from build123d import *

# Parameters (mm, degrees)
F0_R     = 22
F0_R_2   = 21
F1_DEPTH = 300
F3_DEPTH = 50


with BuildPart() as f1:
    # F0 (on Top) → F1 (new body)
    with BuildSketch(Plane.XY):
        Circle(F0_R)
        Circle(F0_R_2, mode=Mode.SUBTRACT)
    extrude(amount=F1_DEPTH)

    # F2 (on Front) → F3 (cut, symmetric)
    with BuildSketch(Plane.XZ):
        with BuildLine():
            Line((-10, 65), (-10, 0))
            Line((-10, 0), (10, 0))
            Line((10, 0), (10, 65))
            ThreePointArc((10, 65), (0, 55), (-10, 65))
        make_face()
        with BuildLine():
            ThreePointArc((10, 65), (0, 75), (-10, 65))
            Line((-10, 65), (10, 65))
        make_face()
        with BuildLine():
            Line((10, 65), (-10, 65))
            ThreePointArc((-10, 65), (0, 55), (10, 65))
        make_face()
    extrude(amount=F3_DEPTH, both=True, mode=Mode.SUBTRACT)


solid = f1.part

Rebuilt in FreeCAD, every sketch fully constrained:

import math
import FreeCAD as App
import Part
import Sketcher

doc = App.newDocument("Part")
body = doc.addObject("PartDesign::Body", "Body")

# Sketch on XY plane
sketch1 = body.newObject("Sketcher::SketchObject", "Sketch")
sketch1.AttachmentSupport = (doc.getObject("XY_Plane"), [""])
sketch1.MapMode = "FlatFace"
sketch1.addGeometry(Part.Circle(App.Vector(0, 0, 0), App.Vector(0, 0, 1), 22), False)
sketch1.addGeometry(Part.Circle(App.Vector(0, 0, 0), App.Vector(0, 0, 1), 21), False)
sketch1.addConstraint(Sketcher.Constraint("Coincident", 0, 3, -1, 1))
sketch1.addConstraint(Sketcher.Constraint("Coincident", 1, 3, -1, 1))
sketch1.addConstraint(Sketcher.Constraint("Diameter", 0, 44.0))
sketch1.addConstraint(Sketcher.Constraint("Diameter", 1, 42.0))
pad1 = body.newObject("PartDesign::Pad", "Pad")
pad1.Profile = sketch1
pad1.Length = 300

# Sketch on XZ plane
sketch2 = body.newObject("Sketcher::SketchObject", "Sketch001")
sketch2.AttachmentSupport = (doc.getObject("XZ_Plane"), [""])
sketch2.MapMode = "FlatFace"
sketch2.addGeometry(Part.LineSegment(App.Vector(-10, 65, 0), App.Vector(-10, 0, 0)), False)
sketch2.addGeometry(Part.LineSegment(App.Vector(-10, 0, 0), App.Vector(10, 0, 0)), False)
sketch2.addGeometry(Part.LineSegment(App.Vector(10, 0, 0), App.Vector(10, 65, 0)), False)
sketch2.addGeometry(Part.ArcOfCircle(Part.Circle(App.Vector(0, 65, 0), App.Vector(0, 0, 1), 10), math.radians(0), math.radians(180)), False)
sketch2.addConstraint(Sketcher.Constraint("Coincident", 0, 2, 1, 1))
sketch2.addConstraint(Sketcher.Constraint("Coincident", 1, 2, 2, 1))
sketch2.addConstraint(Sketcher.Constraint("Tangent", 2, 2, 3, 1))
sketch2.addConstraint(Sketcher.Constraint("Tangent", 3, 2, 0, 1))
sketch2.addConstraint(Sketcher.Constraint("Vertical", 0))
sketch2.addConstraint(Sketcher.Constraint("Horizontal", 1))
sketch2.addConstraint(Sketcher.Constraint("Vertical", 2))
sketch2.addConstraint(Sketcher.Constraint("Symmetric", 0, 2, 1, 2, -1, 1))
sketch2.addConstraint(Sketcher.Constraint("Radius", 3, 10.0))
sketch2.addConstraint(Sketcher.Constraint("DistanceY", 0, 2, 0, 1, 65.0))
pocket1 = body.newObject("PartDesign::Pocket", "Pocket")
pocket1.Profile = sketch2
pocket1.Length = 100
pocket1.Midplane = True

doc.recompute()
